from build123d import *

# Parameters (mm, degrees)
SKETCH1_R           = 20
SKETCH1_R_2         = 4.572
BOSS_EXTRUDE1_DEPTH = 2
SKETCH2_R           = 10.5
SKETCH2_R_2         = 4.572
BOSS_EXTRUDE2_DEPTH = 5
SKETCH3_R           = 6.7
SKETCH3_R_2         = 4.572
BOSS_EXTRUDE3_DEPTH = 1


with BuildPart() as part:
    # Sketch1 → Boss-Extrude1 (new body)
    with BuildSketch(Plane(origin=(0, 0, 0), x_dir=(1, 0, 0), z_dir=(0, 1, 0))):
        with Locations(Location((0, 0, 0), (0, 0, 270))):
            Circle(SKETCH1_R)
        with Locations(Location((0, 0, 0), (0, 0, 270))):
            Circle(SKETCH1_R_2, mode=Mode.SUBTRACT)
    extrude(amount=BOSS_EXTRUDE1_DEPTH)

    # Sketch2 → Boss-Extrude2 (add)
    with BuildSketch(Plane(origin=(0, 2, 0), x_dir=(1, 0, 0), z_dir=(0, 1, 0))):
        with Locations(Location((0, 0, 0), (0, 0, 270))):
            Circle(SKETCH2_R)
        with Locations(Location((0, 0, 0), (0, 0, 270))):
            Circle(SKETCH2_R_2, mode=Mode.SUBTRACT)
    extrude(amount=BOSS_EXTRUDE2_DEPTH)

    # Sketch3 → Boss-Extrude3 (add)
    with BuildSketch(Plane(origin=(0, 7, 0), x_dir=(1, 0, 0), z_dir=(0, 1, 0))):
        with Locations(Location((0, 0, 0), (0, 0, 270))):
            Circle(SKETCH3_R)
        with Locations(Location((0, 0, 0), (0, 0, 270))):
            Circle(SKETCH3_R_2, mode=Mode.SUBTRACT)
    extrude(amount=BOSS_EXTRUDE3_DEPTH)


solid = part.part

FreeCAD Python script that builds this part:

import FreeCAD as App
import Part
import Sketcher

V = App.Vector
Q = App.Units.Quantity

doc = App.newDocument("Part")
body = doc.addObject("PartDesign::Body", "Body")

sketch1 = doc.addObject("Sketcher::SketchObject", "Sketch")
body.addObject(sketch1)
sketch1.AttachmentSupport = (doc.XZ_Plane, [""])
sketch1.MapMode = "FlatFace"
sketch1.addGeometry([
    Part.Circle(V(0, 0, 0), V(0, 0, 1), 20),
    Part.Circle(V(0, 0, 0), V(0, 0, 1), 4.6),
], False)
sketch1.addConstraint([
    Sketcher.Constraint("Coincident", 0, 3, -1, 1),
    Sketcher.Constraint("Coincident", 1, 3, -1, 1),
    Sketcher.Constraint("Diameter", 0, Q("40 mm")),
    Sketcher.Constraint("Diameter", 1, Q("9.144 mm")),
])
pad1 = doc.addObject("PartDesign::Pad", "Pad")
body.addObject(pad1)
pad1.Profile = sketch1
pad1.Length = 2
pad1.Reversed = True

sketch2 = doc.addObject("Sketcher::SketchObject", "Sketch001")
body.addObject(sketch2)
sketch2.AttachmentSupport = (doc.XZ_Plane, [""])
sketch2.MapMode = "FlatFace"
sketch2.AttachmentOffset = App.Placement(V(0, 0, -2), App.Rotation())
sketch2.addGeometry([
    Part.Circle(V(0, 0, 0), V(0, 0, 1), 10.5),
    Part.Circle(V(0, 0, 0), V(0, 0, 1), 4.6),
], False)
sketch2.addConstraint([
    Sketcher.Constraint("Coincident", 0, 3, -1, 1),
    Sketcher.Constraint("Coincident", 1, 3, -1, 1),
    Sketcher.Constraint("Diameter", 0, Q("21 mm")),
    Sketcher.Constraint("Diameter", 1, Q("9.144 mm")),
])
pad2 = doc.addObject("PartDesign::Pad", "Pad001")
body.addObject(pad2)
pad2.Profile = sketch2
pad2.Length = 5
pad2.Reversed = True

sketch3 = doc.addObject("Sketcher::SketchObject", "Sketch002")
body.addObject(sketch3)
sketch3.AttachmentSupport = (doc.XZ_Plane, [""])
sketch3.MapMode = "FlatFace"
sketch3.AttachmentOffset = App.Placement(V(0, 0, -7), App.Rotation())
sketch3.addGeometry([
    Part.Circle(V(0, 0, 0), V(0, 0, 1), 6.7),
    Part.Circle(V(0, 0, 0), V(0, 0, 1), 4.6),
], False)
sketch3.addConstraint([
    Sketcher.Constraint("Coincident", 0, 3, -1, 1),
    Sketcher.Constraint("Coincident", 1, 3, -1, 1),
    Sketcher.Constraint("Diameter", 0, Q("13.4 mm")),
    Sketcher.Constraint("Diameter", 1, Q("9.144 mm")),
])
pad3 = doc.addObject("PartDesign::Pad", "Pad002")
body.addObject(pad3)
pad3.Profile = sketch3
pad3.Length = 1
pad3.Reversed = True

doc.recompute()
